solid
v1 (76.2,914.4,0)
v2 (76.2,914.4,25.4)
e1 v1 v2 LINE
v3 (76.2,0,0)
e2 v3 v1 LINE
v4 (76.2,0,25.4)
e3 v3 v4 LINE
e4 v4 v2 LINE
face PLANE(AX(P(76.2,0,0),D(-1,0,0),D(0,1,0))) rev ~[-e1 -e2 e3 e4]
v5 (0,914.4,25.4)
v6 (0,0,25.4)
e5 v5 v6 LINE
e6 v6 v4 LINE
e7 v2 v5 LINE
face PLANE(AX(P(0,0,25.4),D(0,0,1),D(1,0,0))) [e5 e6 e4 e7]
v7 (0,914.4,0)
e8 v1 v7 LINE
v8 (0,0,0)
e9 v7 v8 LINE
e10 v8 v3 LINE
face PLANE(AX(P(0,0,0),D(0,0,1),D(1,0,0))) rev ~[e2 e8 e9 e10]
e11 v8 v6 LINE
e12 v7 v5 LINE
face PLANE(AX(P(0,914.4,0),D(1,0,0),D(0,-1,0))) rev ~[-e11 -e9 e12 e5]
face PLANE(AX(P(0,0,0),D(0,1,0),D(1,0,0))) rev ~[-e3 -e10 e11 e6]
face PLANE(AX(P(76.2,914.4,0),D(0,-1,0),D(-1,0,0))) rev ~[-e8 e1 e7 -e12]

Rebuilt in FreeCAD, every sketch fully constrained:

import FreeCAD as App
import Part
import Sketcher

V = App.Vector
Q = App.Units.Quantity

doc = App.newDocument("Part")
body = doc.addObject("PartDesign::Body", "Body")

# Sketch on XY plane
sketch1 = body.newObject("Sketcher::SketchObject", "Sketch")
sketch1.AttachmentSupport = (doc.getObject("XY_Plane"), [""])
sketch1.MapMode = "FlatFace"
sketch1.addGeometry(Part.LineSegment(V(0, 914, 0), V(0, 0, 0)), False)
sketch1.addGeometry(Part.LineSegment(V(0, 0, 0), V(76, 0, 0)), False)
sketch1.addGeometry(Part.LineSegment(V(76, 0, 0), V(76, 914, 0)), False)
sketch1.addGeometry(Part.LineSegment(V(76, 914, 0), V(0, 914, 0)), False)
sketch1.addConstraint(Sketcher.Constraint("Coincident", 0, 2, 1, 1))
sketch1.addConstraint(Sketcher.Constraint("Coincident", 1, 2, 2, 1))
sketch1.addConstraint(Sketcher.Constraint("Coincident", 2, 2, 3, 1))
sketch1.addConstraint(Sketcher.Constraint("Coincident", 3, 2, 0, 1))
sketch1.addConstraint(Sketcher.Constraint("Vertical", 0))
sketch1.addConstraint(Sketcher.Constraint("Horizontal", 1))
sketch1.addConstraint(Sketcher.Constraint("Vertical", 2))
sketch1.addConstraint(Sketcher.Constraint("Horizontal", 3))
sketch1.addConstraint(Sketcher.Constraint("Coincident", 0, 2, -1, 1))
sketch1.addConstraint(Sketcher.Constraint("DistanceX", 1, 1, 1, 2, Q("3 in")))
sketch1.addConstraint(Sketcher.Constraint("DistanceY", 0, 2, 0, 1, Q("36 in")))
pad1 = body.newObject("PartDesign::Pad", "Pad")
pad1.Profile = sketch1
pad1.Length = Q("1 in")

doc.recompute()
